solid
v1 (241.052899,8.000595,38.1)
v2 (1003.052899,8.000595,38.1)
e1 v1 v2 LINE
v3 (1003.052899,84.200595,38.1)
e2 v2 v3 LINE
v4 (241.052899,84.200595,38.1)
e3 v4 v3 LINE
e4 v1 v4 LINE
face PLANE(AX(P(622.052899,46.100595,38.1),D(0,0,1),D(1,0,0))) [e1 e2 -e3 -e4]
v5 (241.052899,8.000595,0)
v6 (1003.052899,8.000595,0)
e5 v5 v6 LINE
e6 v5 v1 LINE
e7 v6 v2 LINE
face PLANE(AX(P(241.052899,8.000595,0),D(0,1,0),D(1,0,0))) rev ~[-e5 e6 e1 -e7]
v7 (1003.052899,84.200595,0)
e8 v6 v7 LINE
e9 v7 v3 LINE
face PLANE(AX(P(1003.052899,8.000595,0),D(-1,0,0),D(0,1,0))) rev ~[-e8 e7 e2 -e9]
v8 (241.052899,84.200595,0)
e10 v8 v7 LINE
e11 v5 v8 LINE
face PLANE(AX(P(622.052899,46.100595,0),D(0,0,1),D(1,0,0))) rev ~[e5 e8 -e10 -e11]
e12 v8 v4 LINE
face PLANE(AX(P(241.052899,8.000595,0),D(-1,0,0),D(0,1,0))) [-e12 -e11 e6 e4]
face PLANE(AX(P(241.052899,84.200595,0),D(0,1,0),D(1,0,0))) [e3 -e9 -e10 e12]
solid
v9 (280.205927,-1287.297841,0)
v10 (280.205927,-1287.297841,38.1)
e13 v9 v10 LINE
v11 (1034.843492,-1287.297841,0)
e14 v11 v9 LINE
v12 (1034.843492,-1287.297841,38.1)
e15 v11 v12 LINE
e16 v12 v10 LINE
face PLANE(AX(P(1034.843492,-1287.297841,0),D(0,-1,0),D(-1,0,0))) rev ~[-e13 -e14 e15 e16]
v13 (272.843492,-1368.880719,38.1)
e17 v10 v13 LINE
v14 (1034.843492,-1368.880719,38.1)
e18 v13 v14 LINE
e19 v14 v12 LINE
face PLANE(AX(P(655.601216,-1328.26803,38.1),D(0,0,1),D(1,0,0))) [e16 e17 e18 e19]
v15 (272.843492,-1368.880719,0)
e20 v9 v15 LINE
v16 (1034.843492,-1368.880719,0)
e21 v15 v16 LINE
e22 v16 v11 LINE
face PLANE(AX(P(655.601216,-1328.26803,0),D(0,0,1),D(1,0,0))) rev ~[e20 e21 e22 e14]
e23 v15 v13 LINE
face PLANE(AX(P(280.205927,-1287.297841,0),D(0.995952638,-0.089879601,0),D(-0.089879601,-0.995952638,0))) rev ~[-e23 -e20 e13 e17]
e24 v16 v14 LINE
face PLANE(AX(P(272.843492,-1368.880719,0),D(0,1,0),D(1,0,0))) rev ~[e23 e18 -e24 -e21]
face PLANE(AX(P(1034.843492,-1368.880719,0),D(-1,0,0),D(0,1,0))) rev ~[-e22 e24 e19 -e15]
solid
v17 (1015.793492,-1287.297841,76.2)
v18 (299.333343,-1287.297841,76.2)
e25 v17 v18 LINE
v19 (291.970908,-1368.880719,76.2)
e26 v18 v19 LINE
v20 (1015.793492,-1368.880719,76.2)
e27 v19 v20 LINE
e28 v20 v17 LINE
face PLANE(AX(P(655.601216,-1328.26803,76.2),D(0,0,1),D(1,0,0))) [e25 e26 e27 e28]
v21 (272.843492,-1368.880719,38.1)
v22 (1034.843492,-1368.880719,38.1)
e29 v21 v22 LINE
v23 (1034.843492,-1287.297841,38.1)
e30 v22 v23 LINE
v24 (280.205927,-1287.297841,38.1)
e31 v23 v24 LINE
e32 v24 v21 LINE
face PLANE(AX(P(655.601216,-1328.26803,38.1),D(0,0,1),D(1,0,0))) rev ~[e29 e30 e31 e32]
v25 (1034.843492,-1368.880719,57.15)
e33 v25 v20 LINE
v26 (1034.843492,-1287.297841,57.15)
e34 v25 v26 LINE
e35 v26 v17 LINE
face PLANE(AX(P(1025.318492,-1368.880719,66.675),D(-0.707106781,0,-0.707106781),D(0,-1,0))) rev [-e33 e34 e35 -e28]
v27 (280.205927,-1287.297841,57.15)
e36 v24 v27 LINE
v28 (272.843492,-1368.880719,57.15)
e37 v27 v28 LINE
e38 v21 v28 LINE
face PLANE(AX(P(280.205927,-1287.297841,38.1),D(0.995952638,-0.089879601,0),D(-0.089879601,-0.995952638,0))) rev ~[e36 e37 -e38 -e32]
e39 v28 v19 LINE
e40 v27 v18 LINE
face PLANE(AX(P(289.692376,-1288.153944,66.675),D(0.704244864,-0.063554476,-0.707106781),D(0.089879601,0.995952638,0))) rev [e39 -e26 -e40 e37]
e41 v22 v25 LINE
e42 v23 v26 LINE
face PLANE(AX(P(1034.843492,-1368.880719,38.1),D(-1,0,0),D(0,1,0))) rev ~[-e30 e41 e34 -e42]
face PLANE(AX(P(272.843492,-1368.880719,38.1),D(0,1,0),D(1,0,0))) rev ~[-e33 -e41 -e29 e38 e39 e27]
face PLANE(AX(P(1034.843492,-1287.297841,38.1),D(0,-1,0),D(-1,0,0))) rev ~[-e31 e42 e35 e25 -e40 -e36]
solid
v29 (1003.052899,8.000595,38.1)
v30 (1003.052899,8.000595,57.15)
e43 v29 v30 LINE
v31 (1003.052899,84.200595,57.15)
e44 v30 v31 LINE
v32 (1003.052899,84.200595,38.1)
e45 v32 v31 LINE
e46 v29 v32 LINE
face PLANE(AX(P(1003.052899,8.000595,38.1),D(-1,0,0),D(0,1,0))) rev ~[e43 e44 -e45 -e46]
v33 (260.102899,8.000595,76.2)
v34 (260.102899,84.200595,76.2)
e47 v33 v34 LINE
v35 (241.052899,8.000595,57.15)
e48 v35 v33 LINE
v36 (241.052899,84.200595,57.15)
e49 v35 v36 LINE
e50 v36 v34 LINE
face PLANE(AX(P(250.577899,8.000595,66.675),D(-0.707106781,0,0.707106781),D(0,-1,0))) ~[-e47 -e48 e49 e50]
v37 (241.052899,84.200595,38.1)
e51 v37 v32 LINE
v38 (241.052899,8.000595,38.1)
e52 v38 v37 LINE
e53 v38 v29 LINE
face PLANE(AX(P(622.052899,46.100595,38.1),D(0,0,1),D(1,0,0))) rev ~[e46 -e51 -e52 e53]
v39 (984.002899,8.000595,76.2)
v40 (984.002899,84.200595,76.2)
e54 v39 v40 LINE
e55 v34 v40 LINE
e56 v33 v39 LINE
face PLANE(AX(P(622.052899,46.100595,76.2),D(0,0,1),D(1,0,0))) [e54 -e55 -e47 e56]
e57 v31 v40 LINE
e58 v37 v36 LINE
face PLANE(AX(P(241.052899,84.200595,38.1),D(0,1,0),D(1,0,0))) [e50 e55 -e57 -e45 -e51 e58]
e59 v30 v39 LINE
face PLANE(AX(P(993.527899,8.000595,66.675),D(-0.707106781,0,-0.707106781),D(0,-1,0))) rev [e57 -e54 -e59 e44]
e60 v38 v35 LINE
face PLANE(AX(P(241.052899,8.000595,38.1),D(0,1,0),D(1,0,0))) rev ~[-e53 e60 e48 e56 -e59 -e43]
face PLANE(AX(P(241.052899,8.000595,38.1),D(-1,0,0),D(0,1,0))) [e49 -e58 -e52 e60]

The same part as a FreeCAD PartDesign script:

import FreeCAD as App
import Part
import Sketcher
Q = App.Units.Quantity


def edges_at(feature, points):
    """Names of the edges that pass closest to the given points."""
    edges = feature.Shape.Edges
    near = lambda p: min(range(len(edges)), key=lambda i: edges[i].distToShape(Part.Vertex(*p))[0])
    return sorted({f"Edge{near(p) + 1}" for p in points})

doc = App.newDocument("Part")
body = doc.addObject("PartDesign::Body", "Body")

sketch1 = body.newObject("Sketcher::SketchObject", "Sketch")
sketch1.AttachmentSupport = (doc.getObject("XY_Plane"), [""])
sketch1.MapMode = "FlatFace"
sketch1.addGeometry([
    Part.LineSegment(App.Vector(241, 84, 0), App.Vector(241, 8, 0)),
    Part.LineSegment(App.Vector(241, 8, 0), App.Vector(1003, 8, 0)),
    Part.LineSegment(App.Vector(1003, 8, 0), App.Vector(1003, 84, 0)),
    Part.LineSegment(App.Vector(1003, 84, 0), App.Vector(241, 84, 0)),
], False)
sketch1.addConstraint([
    Sketcher.Constraint("Coincident", 0, 2, 1, 1),
    Sketcher.Constraint("Coincident", 1, 2, 2, 1),
    Sketcher.Constraint("Coincident", 2, 2, 3, 1),
    Sketcher.Constraint("Coincident", 3, 2, 0, 1),
    Sketcher.Constraint("Vertical", 0),
    Sketcher.Constraint("Horizontal", 1),
    Sketcher.Constraint("Vertical", 2),
    Sketcher.Constraint("Horizontal", 3),
    Sketcher.Constraint("DistanceX", 1, 1, 1, 2, Q("30 in")),
    Sketcher.Constraint("DistanceY", 0, 2, 0, 1, Q("3 in")),
    Sketcher.Constraint("DistanceX", -1, 1, 0, 2, Q("241.052899 mm")),
    Sketcher.Constraint("DistanceY", -1, 1, 0, 2, Q("8.000595 mm")),
])
pad1 = body.newObject("PartDesign::Pad", "Pad")
pad1.Profile = sketch1
pad1.Length = Q("1.5 in")
body2 = doc.addObject("PartDesign::Body", "Body001")

sketch2 = body2.newObject("Sketcher::SketchObject", "Sketch001")
sketch2.AttachmentSupport = (doc.getObject("XY_Plane001"), [""])
sketch2.MapMode = "FlatFace"
sketch2.addGeometry([
    Part.LineSegment(App.Vector(1035, -1287, 0), App.Vector(280, -1287, 0)),
    Part.LineSegment(App.Vector(280, -1287, 0), App.Vector(273, -1369, 0)),
    Part.LineSegment(App.Vector(273, -1369, 0), App.Vector(1035, -1369, 0)),
    Part.LineSegment(App.Vector(1035, -1369, 0), App.Vector(1035, -1287, 0)),
], False)
sketch2.addConstraint([
    Sketcher.Constraint("Coincident", 0, 2, 1, 1),
    Sketcher.Constraint("Coincident", 1, 2, 2, 1),
    Sketcher.Constraint("Coincident", 2, 2, 3, 1),
    Sketcher.Constraint("Coincident", 3, 2, 0, 1),
    Sketcher.Constraint("Horizontal", 0),
    Sketcher.Constraint("Horizontal", 2),
    Sketcher.Constraint("Vertical", 3),
    Sketcher.Constraint("DistanceX", 2, 1, 2, 2, Q("30 in")),
    Sketcher.Constraint("DistanceX", 0, 2, 0, 1, Q("754.637565 mm")),
    Sketcher.Constraint("DistanceY", 3, 1, 3, 2, Q("81.582878 mm")),
    Sketcher.Constraint("DistanceY", 0, 2, -1, 1, Q("1287.297841 mm")),
    Sketcher.Constraint("DistanceX", -1, 1, 2, 2, Q("1034.843492 mm")),
])
pad2 = body2.newObject("PartDesign::Pad", "Pad001")
pad2.Profile = sketch2
pad2.Length = Q("1.5 in")
body3 = doc.addObject("PartDesign::Body", "Body002")

sketch3 = body3.newObject("Sketcher::SketchObject", "Sketch002")
sketch3.AttachmentSupport = (doc.getObject("XY_Plane002"), [""])
sketch3.MapMode = "FlatFace"
sketch3.AttachmentOffset = App.Placement(App.Vector(0, 0, 1.5 * 25.4), App.Rotation())
sketch3.addGeometry([
    Part.LineSegment(App.Vector(241, 84, 0), App.Vector(241, 8, 0)),
    Part.LineSegment(App.Vector(241, 8, 0), App.Vector(1003, 8, 0)),
    Part.LineSegment(App.Vector(1003, 8, 0), App.Vector(1003, 84, 0)),
    Part.LineSegment(App.Vector(1003, 84, 0), App.Vector(241, 84, 0)),
], False)
sketch3.addConstraint([
    Sketcher.Constraint("Coincident", 0, 2, 1, 1),
    Sketcher.Constraint("Coincident", 1, 2, 2, 1),
    Sketcher.Constraint("Coincident", 2, 2, 3, 1),
    Sketcher.Constraint("Coincident", 3, 2, 0, 1),
    Sketcher.Constraint("Vertical", 0),
    Sketcher.Constraint("Horizontal", 1),
    Sketcher.Constraint("Vertical", 2),
    Sketcher.Constraint("Horizontal", 3),
    Sketcher.Constraint("DistanceX", 1, 1, 1, 2, Q("30 in")),
    Sketcher.Constraint("DistanceY", 0, 2, 0, 1, Q("3 in")),
    Sketcher.Constraint("DistanceX", -1, 1, 0, 2, Q("241.052899 mm")),
    Sketcher.Constraint("DistanceY", -1, 1, 0, 2, Q("8.000595 mm")),
])
pad3 = body3.newObject("PartDesign::Pad", "Pad002")
pad3.Profile = sketch3
pad3.Length = Q("1.5 in")
doc.recompute()

chamfer = body3.newObject("PartDesign::Chamfer", "Chamfer")
chamfer.Base = (pad3, edges_at(pad3, [(241.053, 46.101, 76.2), (1003.053, 46.101, 76.2)]))
chamfer.Size = Q("0.75 in")
body4 = doc.addObject("PartDesign::Body", "Body003")

sketch4 = body4.newObject("Sketcher::SketchObject", "Sketch003")
sketch4.AttachmentSupport = (doc.getObject("XY_Plane003"), [""])
sketch4.MapMode = "FlatFace"
sketch4.AttachmentOffset = App.Placement(App.Vector(0, 0, 1.5 * 25.4), App.Rotation())
sketch4.addGeometry([
    Part.LineSegment(App.Vector(1035, -1287, 0), App.Vector(280, -1287, 0)),
    Part.LineSegment(App.Vector(280, -1287, 0), App.Vector(273, -1369, 0)),
    Part.LineSegment(App.Vector(273, -1369, 0), App.Vector(1035, -1369, 0)),
    Part.LineSegment(App.Vector(1035, -1369, 0), App.Vector(1035, -1287, 0)),
], False)
sketch4.addConstraint([
    Sketcher.Constraint("Coincident", 0, 2, 1, 1),
    Sketcher.Constraint("Coincident", 1, 2, 2, 1),
    Sketcher.Constraint("Coincident", 2, 2, 3, 1),
    Sketcher.Constraint("Coincident", 3, 2, 0, 1),
    Sketcher.Constraint("Horizontal", 0),
    Sketcher.Constraint("Horizontal", 2),
    Sketcher.Constraint("Vertical", 3),
    Sketcher.Constraint("DistanceX", 2, 1, 2, 2, Q("30 in")),
    Sketcher.Constraint("DistanceX", 0, 2, 0, 1, Q("754.637565 mm")),
    Sketcher.Constraint("DistanceY", 3, 1, 3, 2, Q("81.582878 mm")),
    Sketcher.Constraint("DistanceY", 0, 2, -1, 1, Q("1287.297841 mm")),
    Sketcher.Constraint("DistanceX", -1, 1, 2, 2, Q("1034.843492 mm")),
])
pad4 = body4.newObject("PartDesign::Pad", "Pad003")
pad4.Profile = sketch4
pad4.Length = Q("1.5 in")
doc.recompute()

chamfer2 = body4.newObject("PartDesign::Chamfer", "Chamfer001")
chamfer2.Base = (pad4, edges_at(pad4, [(1034.843, -1328.089, 76.2), (276.525, -1328.089, 76.2)]))
chamfer2.Size = Q("0.75 in")

doc.recompute()
